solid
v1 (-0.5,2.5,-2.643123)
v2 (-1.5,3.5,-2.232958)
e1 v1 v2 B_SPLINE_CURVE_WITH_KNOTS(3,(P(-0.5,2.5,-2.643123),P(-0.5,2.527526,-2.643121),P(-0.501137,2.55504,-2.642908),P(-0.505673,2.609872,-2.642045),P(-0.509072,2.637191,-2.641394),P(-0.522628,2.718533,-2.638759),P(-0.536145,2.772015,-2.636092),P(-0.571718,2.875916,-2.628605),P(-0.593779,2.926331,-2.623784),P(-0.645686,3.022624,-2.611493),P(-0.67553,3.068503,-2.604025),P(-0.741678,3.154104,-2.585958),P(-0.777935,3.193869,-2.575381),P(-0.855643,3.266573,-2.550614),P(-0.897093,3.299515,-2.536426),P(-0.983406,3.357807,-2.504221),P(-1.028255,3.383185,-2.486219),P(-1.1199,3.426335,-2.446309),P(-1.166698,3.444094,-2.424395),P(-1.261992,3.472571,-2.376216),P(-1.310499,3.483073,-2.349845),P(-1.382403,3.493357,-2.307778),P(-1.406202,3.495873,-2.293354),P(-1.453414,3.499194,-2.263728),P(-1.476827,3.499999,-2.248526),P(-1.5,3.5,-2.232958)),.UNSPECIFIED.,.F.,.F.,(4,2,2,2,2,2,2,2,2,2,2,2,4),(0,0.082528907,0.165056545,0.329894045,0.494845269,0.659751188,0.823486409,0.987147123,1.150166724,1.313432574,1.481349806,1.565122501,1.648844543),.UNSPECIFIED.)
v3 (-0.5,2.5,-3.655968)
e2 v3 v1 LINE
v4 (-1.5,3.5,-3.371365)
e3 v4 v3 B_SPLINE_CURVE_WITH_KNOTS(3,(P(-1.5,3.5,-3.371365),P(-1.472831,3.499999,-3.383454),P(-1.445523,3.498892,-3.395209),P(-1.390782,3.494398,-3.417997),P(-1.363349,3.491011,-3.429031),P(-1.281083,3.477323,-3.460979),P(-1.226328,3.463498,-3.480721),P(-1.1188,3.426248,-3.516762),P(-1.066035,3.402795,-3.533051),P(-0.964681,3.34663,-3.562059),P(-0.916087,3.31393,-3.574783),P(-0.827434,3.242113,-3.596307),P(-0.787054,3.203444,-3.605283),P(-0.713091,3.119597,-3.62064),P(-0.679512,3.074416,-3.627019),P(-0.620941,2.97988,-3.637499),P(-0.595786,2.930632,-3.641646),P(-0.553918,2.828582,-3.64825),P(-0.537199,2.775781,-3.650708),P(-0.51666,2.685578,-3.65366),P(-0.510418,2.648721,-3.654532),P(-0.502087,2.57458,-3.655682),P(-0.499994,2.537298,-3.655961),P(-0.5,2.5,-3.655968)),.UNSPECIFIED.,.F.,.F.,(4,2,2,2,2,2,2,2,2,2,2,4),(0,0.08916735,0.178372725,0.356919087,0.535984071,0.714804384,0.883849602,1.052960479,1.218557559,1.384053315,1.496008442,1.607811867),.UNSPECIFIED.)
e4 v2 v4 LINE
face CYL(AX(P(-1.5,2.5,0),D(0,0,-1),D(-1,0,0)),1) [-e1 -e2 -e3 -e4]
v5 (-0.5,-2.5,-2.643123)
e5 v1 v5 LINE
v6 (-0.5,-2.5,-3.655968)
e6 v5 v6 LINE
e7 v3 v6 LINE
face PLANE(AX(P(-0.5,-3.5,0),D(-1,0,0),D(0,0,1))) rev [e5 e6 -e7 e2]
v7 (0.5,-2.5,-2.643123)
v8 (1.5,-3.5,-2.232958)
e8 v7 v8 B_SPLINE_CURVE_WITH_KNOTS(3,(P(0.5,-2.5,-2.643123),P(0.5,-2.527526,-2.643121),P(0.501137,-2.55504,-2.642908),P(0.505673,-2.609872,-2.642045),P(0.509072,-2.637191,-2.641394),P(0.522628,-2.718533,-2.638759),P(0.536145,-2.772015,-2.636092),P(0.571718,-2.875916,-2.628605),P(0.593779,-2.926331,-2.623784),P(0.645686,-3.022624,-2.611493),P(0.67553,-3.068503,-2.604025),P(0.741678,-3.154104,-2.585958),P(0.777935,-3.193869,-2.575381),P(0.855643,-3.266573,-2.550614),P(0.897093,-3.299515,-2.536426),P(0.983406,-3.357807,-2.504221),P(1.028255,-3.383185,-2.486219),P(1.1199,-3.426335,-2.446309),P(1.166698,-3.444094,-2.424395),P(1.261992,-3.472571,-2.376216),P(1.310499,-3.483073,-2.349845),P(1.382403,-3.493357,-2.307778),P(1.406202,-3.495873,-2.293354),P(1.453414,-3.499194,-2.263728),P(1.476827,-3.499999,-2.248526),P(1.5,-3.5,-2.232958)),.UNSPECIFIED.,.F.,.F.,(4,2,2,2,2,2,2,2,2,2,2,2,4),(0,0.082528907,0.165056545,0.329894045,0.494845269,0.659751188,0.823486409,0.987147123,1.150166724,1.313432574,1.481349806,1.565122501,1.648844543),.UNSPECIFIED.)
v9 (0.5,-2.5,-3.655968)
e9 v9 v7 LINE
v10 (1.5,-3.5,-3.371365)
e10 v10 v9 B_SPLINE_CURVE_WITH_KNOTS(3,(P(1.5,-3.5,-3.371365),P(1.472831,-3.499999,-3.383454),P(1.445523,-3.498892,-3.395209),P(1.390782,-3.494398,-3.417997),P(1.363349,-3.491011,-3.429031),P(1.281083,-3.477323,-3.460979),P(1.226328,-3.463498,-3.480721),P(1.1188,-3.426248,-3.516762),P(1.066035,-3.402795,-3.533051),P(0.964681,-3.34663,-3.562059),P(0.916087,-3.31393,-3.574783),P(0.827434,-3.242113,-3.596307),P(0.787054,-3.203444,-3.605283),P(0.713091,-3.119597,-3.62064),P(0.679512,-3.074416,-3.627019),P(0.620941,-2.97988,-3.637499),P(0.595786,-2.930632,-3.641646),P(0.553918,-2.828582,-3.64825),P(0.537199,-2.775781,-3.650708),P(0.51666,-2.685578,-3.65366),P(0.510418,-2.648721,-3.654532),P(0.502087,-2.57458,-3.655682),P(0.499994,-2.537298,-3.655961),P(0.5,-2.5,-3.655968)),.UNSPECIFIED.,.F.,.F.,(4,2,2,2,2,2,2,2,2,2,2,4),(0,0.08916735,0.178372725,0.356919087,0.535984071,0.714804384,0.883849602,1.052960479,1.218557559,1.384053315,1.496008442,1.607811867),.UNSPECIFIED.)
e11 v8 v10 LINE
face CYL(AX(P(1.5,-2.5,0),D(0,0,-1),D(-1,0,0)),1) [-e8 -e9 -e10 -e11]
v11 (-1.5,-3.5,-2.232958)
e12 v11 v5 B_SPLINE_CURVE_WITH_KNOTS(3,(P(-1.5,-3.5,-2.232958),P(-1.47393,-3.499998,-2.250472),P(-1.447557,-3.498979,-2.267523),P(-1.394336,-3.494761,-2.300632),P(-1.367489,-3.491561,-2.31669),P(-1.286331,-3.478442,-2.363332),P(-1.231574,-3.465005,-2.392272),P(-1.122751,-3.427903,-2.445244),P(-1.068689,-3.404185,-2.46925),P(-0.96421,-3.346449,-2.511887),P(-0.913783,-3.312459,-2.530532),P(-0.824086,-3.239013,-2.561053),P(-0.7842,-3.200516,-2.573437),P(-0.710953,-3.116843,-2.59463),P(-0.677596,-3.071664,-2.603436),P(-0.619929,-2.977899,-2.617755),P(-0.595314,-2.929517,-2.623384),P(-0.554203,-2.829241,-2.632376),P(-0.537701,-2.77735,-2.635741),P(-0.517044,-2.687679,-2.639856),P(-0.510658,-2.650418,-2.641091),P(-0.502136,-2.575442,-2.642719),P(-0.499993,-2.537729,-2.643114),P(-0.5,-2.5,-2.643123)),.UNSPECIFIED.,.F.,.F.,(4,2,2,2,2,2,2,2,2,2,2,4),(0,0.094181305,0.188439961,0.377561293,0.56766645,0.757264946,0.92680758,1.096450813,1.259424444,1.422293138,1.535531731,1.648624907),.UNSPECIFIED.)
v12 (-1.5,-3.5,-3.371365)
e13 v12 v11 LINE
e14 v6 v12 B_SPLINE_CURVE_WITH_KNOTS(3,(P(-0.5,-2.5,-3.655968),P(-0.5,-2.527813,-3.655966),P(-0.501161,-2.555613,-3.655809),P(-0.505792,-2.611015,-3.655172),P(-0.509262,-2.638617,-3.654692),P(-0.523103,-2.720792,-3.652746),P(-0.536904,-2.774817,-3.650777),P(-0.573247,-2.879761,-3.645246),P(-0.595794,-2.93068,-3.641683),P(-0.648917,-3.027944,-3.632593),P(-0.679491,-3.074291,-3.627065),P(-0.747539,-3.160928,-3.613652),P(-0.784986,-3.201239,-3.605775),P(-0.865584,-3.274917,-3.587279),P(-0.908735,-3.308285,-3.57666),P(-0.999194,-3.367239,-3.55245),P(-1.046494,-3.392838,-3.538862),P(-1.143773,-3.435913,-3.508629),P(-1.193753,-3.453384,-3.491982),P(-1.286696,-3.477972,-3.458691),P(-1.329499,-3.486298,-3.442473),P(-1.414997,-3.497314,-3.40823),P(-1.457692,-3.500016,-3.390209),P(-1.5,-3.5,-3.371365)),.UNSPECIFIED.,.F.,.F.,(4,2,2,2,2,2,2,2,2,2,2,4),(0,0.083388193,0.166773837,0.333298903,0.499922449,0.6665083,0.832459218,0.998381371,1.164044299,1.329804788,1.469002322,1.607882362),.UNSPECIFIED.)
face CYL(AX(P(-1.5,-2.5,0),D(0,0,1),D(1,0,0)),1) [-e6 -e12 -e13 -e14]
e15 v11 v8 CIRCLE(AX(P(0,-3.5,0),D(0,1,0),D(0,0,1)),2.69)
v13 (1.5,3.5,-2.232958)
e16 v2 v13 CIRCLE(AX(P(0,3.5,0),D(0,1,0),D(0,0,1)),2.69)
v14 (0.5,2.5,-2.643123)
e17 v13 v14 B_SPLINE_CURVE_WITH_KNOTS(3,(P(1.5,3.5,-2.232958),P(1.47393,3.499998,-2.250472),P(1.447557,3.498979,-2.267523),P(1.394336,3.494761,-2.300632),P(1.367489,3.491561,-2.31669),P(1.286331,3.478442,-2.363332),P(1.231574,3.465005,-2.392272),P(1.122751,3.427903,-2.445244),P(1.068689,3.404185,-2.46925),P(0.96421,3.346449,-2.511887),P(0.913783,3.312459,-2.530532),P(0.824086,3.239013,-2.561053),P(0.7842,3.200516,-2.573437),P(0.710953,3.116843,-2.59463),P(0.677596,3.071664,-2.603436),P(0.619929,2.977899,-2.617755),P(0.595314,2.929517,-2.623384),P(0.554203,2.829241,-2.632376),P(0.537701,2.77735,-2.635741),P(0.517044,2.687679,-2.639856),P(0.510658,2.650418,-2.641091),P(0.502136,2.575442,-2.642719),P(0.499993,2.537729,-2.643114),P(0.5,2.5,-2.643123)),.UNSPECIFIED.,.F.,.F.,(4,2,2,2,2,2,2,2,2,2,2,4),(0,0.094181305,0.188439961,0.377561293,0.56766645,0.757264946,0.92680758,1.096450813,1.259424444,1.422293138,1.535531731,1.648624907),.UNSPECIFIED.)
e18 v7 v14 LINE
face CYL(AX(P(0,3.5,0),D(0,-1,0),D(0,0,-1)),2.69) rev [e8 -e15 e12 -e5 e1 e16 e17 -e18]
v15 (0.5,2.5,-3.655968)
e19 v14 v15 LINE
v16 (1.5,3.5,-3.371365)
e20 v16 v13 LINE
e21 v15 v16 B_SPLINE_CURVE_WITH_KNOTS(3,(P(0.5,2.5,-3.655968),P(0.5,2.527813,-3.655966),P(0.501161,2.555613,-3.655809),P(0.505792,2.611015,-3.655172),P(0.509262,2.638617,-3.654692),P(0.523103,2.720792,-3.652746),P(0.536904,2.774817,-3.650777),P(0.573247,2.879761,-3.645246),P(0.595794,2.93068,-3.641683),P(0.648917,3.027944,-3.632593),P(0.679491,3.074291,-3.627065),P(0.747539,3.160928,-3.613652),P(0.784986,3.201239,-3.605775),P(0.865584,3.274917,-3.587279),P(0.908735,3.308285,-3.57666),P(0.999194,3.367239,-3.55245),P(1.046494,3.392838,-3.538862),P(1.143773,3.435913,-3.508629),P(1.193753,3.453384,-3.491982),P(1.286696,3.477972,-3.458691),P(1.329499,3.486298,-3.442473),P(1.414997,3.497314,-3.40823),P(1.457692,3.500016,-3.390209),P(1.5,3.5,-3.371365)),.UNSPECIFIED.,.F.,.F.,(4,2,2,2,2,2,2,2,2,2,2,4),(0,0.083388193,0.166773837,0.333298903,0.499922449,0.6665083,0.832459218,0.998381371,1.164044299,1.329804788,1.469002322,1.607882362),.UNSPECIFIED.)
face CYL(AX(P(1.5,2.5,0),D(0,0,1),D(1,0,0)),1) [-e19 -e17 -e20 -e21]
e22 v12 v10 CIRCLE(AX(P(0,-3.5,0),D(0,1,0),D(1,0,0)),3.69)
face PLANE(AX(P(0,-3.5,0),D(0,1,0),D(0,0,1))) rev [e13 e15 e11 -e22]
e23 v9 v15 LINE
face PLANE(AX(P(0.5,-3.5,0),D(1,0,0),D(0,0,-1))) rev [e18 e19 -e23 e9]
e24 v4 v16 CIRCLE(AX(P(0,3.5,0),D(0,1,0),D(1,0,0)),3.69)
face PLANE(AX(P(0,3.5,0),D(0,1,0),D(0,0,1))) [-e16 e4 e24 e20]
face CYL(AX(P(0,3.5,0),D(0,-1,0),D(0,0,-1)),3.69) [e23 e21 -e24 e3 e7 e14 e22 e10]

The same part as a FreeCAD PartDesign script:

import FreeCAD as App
import Part
import Sketcher
Q = App.Units.Quantity


def edges_at(feature, points):
    """Names of the edges that pass closest to the given points."""
    edges = feature.Shape.Edges
    near = lambda p: min(range(len(edges)), key=lambda i: edges[i].distToShape(Part.Vertex(*p))[0])
    return sorted({f"Edge{near(p) + 1}" for p in points})

doc = App.newDocument("Part")
body = doc.addObject("PartDesign::Body", "Body")

sketch1 = body.newObject("Sketcher::SketchObject", "Sketch")
sketch1.AttachmentSupport = (doc.getObject("XZ_Plane"), [""])
sketch1.MapMode = "FlatFace"
sketch1.addGeometry([
    Part.Circle(App.Vector(0, 0, 0), App.Vector(0, 0, 1), 3.7),
    Part.Circle(App.Vector(0, 0, 0), App.Vector(0, 0, 1), 2.7),
], False)
sketch1.addConstraint([
    Sketcher.Constraint("Coincident", 0, 3, -1, 1),
    Sketcher.Constraint("Coincident", 1, 3, -1, 1),
    Sketcher.Constraint("Diameter", 0, Q("7.38 mm")),
    Sketcher.Constraint("Diameter", 1, Q("5.38 mm")),
])
pad1 = body.newObject("PartDesign::Pad", "Pad")
pad1.Profile = sketch1
pad1.Length = 7
pad1.Midplane = True

sketch2 = body.newObject("Sketcher::SketchObject", "Sketch001")
sketch2.AttachmentSupport = (doc.getObject("XZ_Plane"), [""])
sketch2.MapMode = "FlatFace"
sketch2.addGeometry([
    Part.LineSegment(App.Vector(-0.5, -1000, 0), App.Vector(-0.5, 0, 0)),
    Part.LineSegment(App.Vector(-0.5, 0, 0), App.Vector(0.5, 0, 0)),
    Part.LineSegment(App.Vector(0.5, 0, 0), App.Vector(0.5, -1000, 0)),
    Part.LineSegment(App.Vector(0.5, -1000, 0), App.Vector(-0.5, -1000, 0)),
], False)
sketch2.addConstraint([
    Sketcher.Constraint("Coincident", 0, 2, 1, 1),
    Sketcher.Constraint("Coincident", 1, 2, 2, 1),
    Sketcher.Constraint("Coincident", 2, 2, 3, 1),
    Sketcher.Constraint("Coincident", 3, 2, 0, 1),
    Sketcher.Constraint("Vertical", 0),
    Sketcher.Constraint("Horizontal", 1),
    Sketcher.Constraint("Vertical", 2),
    Sketcher.Constraint("Horizontal", 3),
    Sketcher.Constraint("Symmetric", 0, 2, 1, 2, -1, 1),
    Sketcher.Constraint("DistanceX", 1, 1, 1, 2, Q("1 mm")),
    Sketcher.Constraint("DistanceY", 0, 1, 0, 2, Q("1000 mm")),
])
pocket1 = body.newObject("PartDesign::Pocket", "Pocket")
pocket1.Profile = sketch2
pocket1.Type = "ThroughAll"
pocket1.Midplane = True
doc.recompute()

fillet = body.newObject("PartDesign::Fillet", "Fillet")
fillet.Base = (pocket1, edges_at(pocket1, [
    (0.5, -3.5, -3.15),
    (-0.5, -3.5, -3.15),
    (0.5, 3.5, -3.15),
    (-0.5, 3.5, -3.15),
]))
fillet.Radius = 1

doc.recompute()
